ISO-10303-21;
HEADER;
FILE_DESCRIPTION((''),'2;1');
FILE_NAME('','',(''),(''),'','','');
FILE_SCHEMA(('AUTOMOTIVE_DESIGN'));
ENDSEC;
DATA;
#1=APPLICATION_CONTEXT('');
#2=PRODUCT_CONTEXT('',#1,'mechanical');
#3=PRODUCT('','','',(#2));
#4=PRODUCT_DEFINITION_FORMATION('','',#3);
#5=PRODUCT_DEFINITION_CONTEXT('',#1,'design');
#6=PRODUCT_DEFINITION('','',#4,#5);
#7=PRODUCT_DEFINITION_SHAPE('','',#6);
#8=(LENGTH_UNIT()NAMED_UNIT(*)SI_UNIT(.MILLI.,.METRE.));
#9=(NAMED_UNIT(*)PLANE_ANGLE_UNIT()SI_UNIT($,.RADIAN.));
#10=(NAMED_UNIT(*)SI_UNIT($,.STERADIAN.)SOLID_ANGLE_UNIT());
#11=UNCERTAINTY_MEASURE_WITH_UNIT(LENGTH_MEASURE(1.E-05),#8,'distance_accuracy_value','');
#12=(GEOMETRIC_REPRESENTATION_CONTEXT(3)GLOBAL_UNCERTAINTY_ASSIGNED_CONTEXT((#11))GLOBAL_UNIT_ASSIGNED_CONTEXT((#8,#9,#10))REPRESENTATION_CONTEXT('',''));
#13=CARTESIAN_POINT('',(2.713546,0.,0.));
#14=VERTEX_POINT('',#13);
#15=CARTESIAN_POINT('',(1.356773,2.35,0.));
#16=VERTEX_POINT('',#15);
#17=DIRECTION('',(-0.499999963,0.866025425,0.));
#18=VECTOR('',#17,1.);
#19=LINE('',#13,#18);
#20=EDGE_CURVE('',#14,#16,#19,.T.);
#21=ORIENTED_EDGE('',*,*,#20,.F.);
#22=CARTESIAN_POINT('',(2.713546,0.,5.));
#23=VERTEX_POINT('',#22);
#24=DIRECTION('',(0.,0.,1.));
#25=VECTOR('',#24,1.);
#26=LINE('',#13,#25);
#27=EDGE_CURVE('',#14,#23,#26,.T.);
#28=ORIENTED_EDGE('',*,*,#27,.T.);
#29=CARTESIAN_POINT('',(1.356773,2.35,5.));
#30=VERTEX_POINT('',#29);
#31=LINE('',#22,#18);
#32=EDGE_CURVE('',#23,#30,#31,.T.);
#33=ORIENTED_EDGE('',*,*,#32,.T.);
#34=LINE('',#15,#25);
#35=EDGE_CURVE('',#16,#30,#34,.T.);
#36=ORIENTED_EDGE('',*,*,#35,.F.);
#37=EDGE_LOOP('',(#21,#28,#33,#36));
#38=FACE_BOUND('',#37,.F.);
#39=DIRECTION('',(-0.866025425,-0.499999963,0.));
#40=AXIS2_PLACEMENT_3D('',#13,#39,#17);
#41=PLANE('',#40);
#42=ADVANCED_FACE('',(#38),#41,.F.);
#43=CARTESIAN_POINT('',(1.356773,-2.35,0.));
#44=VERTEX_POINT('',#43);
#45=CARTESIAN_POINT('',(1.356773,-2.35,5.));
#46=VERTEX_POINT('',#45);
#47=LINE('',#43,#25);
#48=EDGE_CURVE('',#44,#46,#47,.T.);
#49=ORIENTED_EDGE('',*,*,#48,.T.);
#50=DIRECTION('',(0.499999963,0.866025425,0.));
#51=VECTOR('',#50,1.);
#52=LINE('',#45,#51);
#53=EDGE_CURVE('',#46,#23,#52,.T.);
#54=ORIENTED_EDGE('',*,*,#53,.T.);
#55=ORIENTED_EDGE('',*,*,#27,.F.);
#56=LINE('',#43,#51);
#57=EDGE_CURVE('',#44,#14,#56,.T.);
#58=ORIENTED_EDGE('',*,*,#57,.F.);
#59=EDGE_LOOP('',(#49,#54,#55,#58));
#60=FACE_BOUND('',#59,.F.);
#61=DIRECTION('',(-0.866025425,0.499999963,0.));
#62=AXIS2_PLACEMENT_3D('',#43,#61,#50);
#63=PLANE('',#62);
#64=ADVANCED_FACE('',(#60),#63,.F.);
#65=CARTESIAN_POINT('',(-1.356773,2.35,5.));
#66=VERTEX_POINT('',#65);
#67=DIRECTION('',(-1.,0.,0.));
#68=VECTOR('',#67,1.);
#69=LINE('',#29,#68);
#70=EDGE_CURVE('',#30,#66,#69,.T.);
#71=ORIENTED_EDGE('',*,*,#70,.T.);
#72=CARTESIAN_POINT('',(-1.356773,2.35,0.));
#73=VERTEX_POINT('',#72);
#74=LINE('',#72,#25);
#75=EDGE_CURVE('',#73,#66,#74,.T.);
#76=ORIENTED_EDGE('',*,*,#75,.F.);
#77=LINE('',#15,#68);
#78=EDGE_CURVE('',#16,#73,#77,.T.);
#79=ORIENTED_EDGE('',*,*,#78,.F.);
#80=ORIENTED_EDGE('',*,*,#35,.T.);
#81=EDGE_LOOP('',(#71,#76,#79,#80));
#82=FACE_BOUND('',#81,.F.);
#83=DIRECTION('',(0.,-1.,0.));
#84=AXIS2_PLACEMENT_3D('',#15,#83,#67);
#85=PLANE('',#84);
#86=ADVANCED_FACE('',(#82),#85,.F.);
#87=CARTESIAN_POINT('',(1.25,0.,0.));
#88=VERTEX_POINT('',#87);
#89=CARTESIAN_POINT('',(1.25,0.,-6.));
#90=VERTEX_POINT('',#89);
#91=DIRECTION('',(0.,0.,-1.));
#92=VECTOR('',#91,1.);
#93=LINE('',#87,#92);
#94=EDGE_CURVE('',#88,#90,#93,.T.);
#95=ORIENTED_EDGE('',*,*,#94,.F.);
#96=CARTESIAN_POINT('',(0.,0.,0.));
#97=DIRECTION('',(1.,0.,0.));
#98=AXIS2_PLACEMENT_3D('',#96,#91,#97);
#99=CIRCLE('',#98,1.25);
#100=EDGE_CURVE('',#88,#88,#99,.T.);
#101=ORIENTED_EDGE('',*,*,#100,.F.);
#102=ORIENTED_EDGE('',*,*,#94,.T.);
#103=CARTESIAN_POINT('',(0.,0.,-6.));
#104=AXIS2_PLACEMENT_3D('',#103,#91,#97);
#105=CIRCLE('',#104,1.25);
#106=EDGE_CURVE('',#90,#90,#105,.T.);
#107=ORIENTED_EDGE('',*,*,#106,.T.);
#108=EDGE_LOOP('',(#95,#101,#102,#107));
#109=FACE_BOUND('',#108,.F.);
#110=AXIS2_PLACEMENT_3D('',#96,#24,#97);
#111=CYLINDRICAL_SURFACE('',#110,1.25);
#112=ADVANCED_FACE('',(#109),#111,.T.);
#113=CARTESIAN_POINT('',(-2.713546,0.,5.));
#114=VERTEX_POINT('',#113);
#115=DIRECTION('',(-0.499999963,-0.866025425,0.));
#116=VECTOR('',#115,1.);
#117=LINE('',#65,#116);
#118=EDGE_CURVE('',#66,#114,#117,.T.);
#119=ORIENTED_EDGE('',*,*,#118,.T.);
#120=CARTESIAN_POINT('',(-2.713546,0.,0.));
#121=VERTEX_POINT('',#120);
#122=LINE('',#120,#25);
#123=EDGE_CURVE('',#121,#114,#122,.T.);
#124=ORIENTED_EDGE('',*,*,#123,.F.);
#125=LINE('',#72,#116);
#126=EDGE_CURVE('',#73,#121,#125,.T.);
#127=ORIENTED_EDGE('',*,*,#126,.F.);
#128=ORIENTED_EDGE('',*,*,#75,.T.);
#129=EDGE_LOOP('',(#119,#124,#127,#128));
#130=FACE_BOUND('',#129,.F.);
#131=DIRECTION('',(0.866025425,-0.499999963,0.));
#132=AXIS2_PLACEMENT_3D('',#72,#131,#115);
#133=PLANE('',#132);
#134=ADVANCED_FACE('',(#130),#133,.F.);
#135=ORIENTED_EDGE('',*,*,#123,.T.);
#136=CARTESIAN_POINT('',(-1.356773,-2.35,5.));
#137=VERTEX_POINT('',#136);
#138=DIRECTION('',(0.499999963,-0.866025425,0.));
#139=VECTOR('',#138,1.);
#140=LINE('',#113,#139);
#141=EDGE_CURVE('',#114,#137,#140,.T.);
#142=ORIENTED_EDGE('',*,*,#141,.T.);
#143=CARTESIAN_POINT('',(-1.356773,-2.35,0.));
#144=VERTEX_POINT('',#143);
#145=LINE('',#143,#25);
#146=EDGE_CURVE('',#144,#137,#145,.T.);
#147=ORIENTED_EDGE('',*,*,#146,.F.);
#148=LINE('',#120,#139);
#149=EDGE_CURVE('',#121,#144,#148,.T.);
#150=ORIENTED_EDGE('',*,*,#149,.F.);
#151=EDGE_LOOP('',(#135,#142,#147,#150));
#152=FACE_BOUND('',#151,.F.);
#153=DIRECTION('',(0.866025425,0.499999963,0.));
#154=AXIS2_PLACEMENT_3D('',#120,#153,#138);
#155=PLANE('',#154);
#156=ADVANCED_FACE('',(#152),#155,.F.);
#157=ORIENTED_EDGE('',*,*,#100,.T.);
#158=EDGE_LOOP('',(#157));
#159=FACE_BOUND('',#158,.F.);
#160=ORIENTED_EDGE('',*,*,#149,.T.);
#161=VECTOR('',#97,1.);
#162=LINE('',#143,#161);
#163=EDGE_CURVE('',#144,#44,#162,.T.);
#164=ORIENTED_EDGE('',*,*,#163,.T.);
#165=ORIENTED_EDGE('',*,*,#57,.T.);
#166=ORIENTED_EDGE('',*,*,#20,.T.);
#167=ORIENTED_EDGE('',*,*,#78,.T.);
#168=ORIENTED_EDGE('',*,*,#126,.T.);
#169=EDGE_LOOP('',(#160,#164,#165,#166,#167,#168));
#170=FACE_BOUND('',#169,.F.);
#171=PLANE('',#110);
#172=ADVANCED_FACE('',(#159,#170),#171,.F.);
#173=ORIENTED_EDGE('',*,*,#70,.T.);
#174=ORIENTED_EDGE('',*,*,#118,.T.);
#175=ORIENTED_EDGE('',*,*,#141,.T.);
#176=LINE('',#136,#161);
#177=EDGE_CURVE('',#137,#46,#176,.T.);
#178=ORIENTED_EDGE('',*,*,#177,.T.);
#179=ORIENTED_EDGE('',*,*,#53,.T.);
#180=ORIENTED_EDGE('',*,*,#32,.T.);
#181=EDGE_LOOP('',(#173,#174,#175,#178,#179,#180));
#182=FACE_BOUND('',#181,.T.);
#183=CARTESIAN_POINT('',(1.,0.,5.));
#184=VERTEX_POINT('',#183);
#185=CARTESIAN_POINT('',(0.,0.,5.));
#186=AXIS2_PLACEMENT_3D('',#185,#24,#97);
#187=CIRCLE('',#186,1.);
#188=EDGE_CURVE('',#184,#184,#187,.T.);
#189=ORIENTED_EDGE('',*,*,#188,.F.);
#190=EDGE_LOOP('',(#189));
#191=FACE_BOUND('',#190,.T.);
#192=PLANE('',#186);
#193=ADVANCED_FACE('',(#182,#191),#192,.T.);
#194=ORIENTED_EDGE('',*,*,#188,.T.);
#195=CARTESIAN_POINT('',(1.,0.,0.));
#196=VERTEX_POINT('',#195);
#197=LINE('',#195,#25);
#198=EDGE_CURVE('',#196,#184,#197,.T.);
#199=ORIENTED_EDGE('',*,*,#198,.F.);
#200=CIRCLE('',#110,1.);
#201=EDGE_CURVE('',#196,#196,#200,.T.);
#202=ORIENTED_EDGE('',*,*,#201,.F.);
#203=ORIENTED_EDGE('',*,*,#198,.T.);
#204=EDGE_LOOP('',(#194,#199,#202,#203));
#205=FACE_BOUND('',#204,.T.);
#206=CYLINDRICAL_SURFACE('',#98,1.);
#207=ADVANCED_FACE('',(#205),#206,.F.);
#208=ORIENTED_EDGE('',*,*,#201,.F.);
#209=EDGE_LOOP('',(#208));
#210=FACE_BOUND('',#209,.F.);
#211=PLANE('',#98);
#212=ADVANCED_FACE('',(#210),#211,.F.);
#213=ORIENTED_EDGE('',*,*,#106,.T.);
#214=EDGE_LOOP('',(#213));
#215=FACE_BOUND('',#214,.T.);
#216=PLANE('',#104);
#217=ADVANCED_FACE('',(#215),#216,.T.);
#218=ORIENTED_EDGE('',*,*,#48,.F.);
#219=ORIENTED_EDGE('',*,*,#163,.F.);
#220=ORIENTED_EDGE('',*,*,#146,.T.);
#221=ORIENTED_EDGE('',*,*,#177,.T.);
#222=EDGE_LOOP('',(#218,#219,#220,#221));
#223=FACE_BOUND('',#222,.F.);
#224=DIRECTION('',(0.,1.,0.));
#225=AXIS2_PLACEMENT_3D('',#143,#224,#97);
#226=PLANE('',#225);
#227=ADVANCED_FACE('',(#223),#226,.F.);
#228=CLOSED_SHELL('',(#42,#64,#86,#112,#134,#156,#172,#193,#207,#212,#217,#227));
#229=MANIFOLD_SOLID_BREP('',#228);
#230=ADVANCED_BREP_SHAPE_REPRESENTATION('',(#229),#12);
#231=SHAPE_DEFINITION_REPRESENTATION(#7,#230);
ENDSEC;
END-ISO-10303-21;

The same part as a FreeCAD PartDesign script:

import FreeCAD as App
import Part
import Sketcher
Q = App.Units.Quantity

doc = App.newDocument("Part")
body = doc.addObject("PartDesign::Body", "Body")

# Sketch on XY plane
sketch1 = body.newObject("Sketcher::SketchObject", "Sketch")
sketch1.AttachmentSupport = (doc.getObject("XY_Plane"), [""])
sketch1.MapMode = "FlatFace"
sketch1.addGeometry([
    Part.LineSegment(App.Vector(1.4, -2.4, 0), App.Vector(2.7, 0, 0)),  # 0
    Part.LineSegment(App.Vector(2.7, 0, 0), App.Vector(1.4, 2.4, 0)),  # 1
    Part.LineSegment(App.Vector(1.4, 2.4, 0), App.Vector(-1.4, 2.4, 0)),  # 2
    Part.LineSegment(App.Vector(-1.4, 2.4, 0), App.Vector(-2.7, 0, 0)),  # 3
    Part.LineSegment(App.Vector(-2.7, 0, 0), App.Vector(-1.4, -2.4, 0)),  # 4
    Part.LineSegment(App.Vector(-1.4, -2.4, 0), App.Vector(1.4, -2.4, 0)),  # 5
    Part.Circle(App.Vector(0, 0, 0), App.Vector(0, 0, 1), 1),  # 6
], False)
sketch1.addConstraint([
    Sketcher.Constraint("Coincident", 0, 2, 1, 1),
    Sketcher.Constraint("Coincident", 1, 2, 2, 1),
    Sketcher.Constraint("Coincident", 2, 2, 3, 1),
    Sketcher.Constraint("Coincident", 3, 2, 4, 1),
    Sketcher.Constraint("Coincident", 4, 2, 5, 1),
    Sketcher.Constraint("Coincident", 5, 2, 0, 1),
    Sketcher.Constraint("Horizontal", 2),
    Sketcher.Constraint("Horizontal", 5),
    Sketcher.Constraint("Coincident", 6, 3, -1, 1),
    Sketcher.Constraint("Symmetric", 0, 2, 3, 2, -1, 1),
    Sketcher.Constraint("Symmetric", 1, 2, 4, 2, -1, 1),
    Sketcher.Constraint("PointOnObject", 0, 2, -1),
    Sketcher.Constraint("Parallel", 0, 3),
    Sketcher.Constraint("Vertical", 2, 2, 4, 2),
    Sketcher.Constraint("Diameter", 6, 2.0),
    Sketcher.Constraint("Angle", 0, Q("60.000002 deg")),
    Sketcher.Constraint("DistanceY", 4, 2, 2, 2, 4.7),
    Sketcher.Constraint("DistanceX", 2, 2, 2, 1, 2.713546),
])
pad1 = body.newObject("PartDesign::Pad", "Pad")
pad1.Profile = sketch1
pad1.Length = 5

# Sketch on XY plane
sketch2 = body.newObject("Sketcher::SketchObject", "Sketch001")
sketch2.AttachmentSupport = (doc.getObject("XY_Plane"), [""])
sketch2.MapMode = "FlatFace"
sketch2.addGeometry(Part.Circle(App.Vector(0, 0, 0), App.Vector(0, 0, 1), 1.2), False)
sketch2.addConstraint([
    Sketcher.Constraint("Coincident", 0, 3, -1, 1),
    Sketcher.Constraint("Diameter", 0, 2.5),
])
pad2 = body.newObject("PartDesign::Pad", "Pad001")
pad2.Profile = sketch2
pad2.Length = 6
pad2.Reversed = True

doc.recompute()
